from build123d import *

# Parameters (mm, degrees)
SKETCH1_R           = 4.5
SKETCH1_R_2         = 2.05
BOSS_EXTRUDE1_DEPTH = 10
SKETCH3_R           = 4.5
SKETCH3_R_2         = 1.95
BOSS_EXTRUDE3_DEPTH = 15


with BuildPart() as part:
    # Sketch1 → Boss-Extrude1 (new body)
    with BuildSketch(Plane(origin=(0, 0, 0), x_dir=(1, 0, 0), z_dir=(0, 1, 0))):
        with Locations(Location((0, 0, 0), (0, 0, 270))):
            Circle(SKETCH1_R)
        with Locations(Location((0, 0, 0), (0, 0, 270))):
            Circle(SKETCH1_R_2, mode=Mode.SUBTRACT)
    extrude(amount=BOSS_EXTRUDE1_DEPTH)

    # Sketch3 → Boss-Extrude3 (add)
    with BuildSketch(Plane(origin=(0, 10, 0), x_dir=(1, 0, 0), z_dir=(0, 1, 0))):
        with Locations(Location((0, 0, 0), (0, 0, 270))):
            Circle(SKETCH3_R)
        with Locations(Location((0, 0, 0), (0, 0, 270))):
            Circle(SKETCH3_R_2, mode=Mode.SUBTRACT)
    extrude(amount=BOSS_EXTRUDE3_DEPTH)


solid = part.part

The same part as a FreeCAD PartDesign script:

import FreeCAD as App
import Part
import Sketcher
from FreeCAD import Vector
Q = App.Units.Quantity

doc = App.newDocument("Part")
body = doc.addObject("PartDesign::Body", "Body")

# Sketch on XZ plane
sketch1 = body.newObject("Sketcher::SketchObject", "Sketch")
sketch1.AttachmentSupport = (doc.getObject("XZ_Plane"), [""])
sketch1.MapMode = "FlatFace"
sketch1.addGeometry(Part.Circle(Vector(0, 0, 0), Vector(0, 0, 1), 4.5), False)
sketch1.addGeometry(Part.Circle(Vector(0, 0, 0), Vector(0, 0, 1), 2), False)
sketch1.addConstraint(Sketcher.Constraint("Coincident", 0, 3, -1, 1))
sketch1.addConstraint(Sketcher.Constraint("Coincident", 1, 3, -1, 1))
sketch1.addConstraint(Sketcher.Constraint("Diameter", 0, Q("9 mm")))
sketch1.addConstraint(Sketcher.Constraint("Diameter", 1, Q("4.1 mm")))
pad1 = body.newObject("PartDesign::Pad", "Pad")
pad1.Profile = sketch1
pad1.Length = 10
pad1.Reversed = True

# Sketch on XZ plane
sketch2 = body.newObject("Sketcher::SketchObject", "Sketch001")
sketch2.AttachmentSupport = (doc.getObject("XZ_Plane"), [""])
sketch2.MapMode = "FlatFace"
sketch2.AttachmentOffset = App.Placement(Vector(0, 0, -10), App.Rotation())
sketch2.addGeometry(Part.Circle(Vector(0, 0, 0), Vector(0, 0, 1), 4.5), False)
sketch2.addGeometry(Part.Circle(Vector(0, 0, 0), Vector(0, 0, 1), 1.9), False)
sketch2.addConstraint(Sketcher.Constraint("Coincident", 0, 3, -1, 1))
sketch2.addConstraint(Sketcher.Constraint("Coincident", 1, 3, -1, 1))
sketch2.addConstraint(Sketcher.Constraint("Diameter", 0, Q("9 mm")))
sketch2.addConstraint(Sketcher.Constraint("Diameter", 1, Q("3.9 mm")))
pad2 = body.newObject("PartDesign::Pad", "Pad001")
pad2.Profile = sketch2
pad2.Length = 15
pad2.Reversed = True

doc.recompute()
